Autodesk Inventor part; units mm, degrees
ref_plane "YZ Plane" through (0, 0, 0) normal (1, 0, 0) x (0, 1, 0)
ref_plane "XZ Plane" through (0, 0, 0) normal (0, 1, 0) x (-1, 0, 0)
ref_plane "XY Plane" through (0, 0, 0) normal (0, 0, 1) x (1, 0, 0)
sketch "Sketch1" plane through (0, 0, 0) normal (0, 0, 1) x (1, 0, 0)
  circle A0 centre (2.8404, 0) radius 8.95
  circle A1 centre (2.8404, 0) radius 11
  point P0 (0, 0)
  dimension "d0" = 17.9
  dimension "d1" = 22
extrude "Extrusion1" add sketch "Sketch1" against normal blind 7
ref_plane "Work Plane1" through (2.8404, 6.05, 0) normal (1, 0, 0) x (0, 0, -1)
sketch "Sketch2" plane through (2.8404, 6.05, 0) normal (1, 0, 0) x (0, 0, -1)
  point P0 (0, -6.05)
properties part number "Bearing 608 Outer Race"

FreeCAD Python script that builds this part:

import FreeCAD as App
import Part
import Sketcher

doc = App.newDocument("Part")
body = doc.addObject("PartDesign::Body", "Body")

# Sketch on XY plane
sketch1 = body.newObject("Sketcher::SketchObject", "Sketch")
sketch1.AttachmentSupport = (doc.getObject("XY_Plane"), [""])
sketch1.MapMode = "FlatFace"
sketch1.addGeometry([
    Part.Circle(App.Vector(3, 0, 0), App.Vector(0, 0, 1), 11),
    Part.Circle(App.Vector(3, 0, 0), App.Vector(0, 0, 1), 9),
], False)
sketch1.addConstraint([
    Sketcher.Constraint("Coincident", 1, 3, 0, 3),
    Sketcher.Constraint("PointOnObject", 0, 3, -1),
    Sketcher.Constraint("Diameter", 0, 22.0),
    Sketcher.Constraint("Diameter", 1, 17.9),
    Sketcher.Constraint("DistanceX", -1, 1, 0, 3, 2.8404),
])
pad1 = body.newObject("PartDesign::Pad", "Pad")
pad1.Profile = sketch1
pad1.Length = 7
pad1.Reversed = True

doc.recompute()
